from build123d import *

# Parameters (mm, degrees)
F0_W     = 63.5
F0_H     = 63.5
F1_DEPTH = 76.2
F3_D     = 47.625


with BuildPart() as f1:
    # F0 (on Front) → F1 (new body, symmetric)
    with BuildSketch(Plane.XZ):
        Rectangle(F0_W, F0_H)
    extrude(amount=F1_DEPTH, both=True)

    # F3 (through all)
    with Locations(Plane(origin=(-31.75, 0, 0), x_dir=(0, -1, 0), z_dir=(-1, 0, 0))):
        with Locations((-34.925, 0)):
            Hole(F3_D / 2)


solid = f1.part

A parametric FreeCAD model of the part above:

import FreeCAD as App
import Part
import Sketcher

V = App.Vector
Q = App.Units.Quantity

doc = App.newDocument("Part")
body = doc.addObject("PartDesign::Body", "Body")

sketch1 = body.newObject("Sketcher::SketchObject", "Sketch")
sketch1.AttachmentSupport = (doc.getObject("XZ_Plane"), [""])
sketch1.MapMode = "FlatFace"
sketch1.addGeometry([
    Part.LineSegment(V(-32, 32, 0), V(-32, -32, 0)),
    Part.LineSegment(V(-32, -32, 0), V(32, -32, 0)),
    Part.LineSegment(V(32, -32, 0), V(32, 32, 0)),
    Part.LineSegment(V(32, 32, 0), V(-32, 32, 0)),
], False)
sketch1.addConstraint([
    Sketcher.Constraint("Coincident", 0, 2, 1, 1),
    Sketcher.Constraint("Coincident", 1, 2, 2, 1),
    Sketcher.Constraint("Coincident", 2, 2, 3, 1),
    Sketcher.Constraint("Coincident", 3, 2, 0, 1),
    Sketcher.Constraint("Vertical", 0),
    Sketcher.Constraint("Horizontal", 1),
    Sketcher.Constraint("Vertical", 2),
    Sketcher.Constraint("Horizontal", 3),
    Sketcher.Constraint("Symmetric", 0, 2, 2, 2, -1, 1),
    Sketcher.Constraint("Equal", 3, 0),
    Sketcher.Constraint("DistanceX", 1, 1, 1, 2, Q("2.5 in")),
])
pad1 = body.newObject("PartDesign::Pad", "Pad")
pad1.Profile = sketch1
pad1.Length = Q("6 in")
pad1.Midplane = True

sketch2 = body.newObject("Sketcher::SketchObject", "Sketch001")
sketch2.AttachmentSupport = (doc.getObject("YZ_Plane"), [""])
sketch2.MapMode = "FlatFace"
sketch2.AttachmentOffset = App.Placement(V(0, 0, -1.25 * 25.4), App.Rotation())
sketch2.addGeometry(Part.Circle(V(35, 0, 0), V(0, 0, 1), 24), False)
sketch2.addConstraint([
    Sketcher.Constraint("PointOnObject", 0, 3, -1),
    Sketcher.Constraint("Diameter", 0, Q("1.875 in")),
    Sketcher.Constraint("DistanceX", -1, 1, 0, 3, Q("1.375 in")),
])
doc.recompute()
hole = body.newObject("PartDesign::Hole", "Hole")
hole.Profile = sketch2
hole.ThreadType = "None"
hole.Diameter = Q("1.875 in")
hole.DepthType = "ThroughAll"
hole.Reversed = True

doc.recompute()
